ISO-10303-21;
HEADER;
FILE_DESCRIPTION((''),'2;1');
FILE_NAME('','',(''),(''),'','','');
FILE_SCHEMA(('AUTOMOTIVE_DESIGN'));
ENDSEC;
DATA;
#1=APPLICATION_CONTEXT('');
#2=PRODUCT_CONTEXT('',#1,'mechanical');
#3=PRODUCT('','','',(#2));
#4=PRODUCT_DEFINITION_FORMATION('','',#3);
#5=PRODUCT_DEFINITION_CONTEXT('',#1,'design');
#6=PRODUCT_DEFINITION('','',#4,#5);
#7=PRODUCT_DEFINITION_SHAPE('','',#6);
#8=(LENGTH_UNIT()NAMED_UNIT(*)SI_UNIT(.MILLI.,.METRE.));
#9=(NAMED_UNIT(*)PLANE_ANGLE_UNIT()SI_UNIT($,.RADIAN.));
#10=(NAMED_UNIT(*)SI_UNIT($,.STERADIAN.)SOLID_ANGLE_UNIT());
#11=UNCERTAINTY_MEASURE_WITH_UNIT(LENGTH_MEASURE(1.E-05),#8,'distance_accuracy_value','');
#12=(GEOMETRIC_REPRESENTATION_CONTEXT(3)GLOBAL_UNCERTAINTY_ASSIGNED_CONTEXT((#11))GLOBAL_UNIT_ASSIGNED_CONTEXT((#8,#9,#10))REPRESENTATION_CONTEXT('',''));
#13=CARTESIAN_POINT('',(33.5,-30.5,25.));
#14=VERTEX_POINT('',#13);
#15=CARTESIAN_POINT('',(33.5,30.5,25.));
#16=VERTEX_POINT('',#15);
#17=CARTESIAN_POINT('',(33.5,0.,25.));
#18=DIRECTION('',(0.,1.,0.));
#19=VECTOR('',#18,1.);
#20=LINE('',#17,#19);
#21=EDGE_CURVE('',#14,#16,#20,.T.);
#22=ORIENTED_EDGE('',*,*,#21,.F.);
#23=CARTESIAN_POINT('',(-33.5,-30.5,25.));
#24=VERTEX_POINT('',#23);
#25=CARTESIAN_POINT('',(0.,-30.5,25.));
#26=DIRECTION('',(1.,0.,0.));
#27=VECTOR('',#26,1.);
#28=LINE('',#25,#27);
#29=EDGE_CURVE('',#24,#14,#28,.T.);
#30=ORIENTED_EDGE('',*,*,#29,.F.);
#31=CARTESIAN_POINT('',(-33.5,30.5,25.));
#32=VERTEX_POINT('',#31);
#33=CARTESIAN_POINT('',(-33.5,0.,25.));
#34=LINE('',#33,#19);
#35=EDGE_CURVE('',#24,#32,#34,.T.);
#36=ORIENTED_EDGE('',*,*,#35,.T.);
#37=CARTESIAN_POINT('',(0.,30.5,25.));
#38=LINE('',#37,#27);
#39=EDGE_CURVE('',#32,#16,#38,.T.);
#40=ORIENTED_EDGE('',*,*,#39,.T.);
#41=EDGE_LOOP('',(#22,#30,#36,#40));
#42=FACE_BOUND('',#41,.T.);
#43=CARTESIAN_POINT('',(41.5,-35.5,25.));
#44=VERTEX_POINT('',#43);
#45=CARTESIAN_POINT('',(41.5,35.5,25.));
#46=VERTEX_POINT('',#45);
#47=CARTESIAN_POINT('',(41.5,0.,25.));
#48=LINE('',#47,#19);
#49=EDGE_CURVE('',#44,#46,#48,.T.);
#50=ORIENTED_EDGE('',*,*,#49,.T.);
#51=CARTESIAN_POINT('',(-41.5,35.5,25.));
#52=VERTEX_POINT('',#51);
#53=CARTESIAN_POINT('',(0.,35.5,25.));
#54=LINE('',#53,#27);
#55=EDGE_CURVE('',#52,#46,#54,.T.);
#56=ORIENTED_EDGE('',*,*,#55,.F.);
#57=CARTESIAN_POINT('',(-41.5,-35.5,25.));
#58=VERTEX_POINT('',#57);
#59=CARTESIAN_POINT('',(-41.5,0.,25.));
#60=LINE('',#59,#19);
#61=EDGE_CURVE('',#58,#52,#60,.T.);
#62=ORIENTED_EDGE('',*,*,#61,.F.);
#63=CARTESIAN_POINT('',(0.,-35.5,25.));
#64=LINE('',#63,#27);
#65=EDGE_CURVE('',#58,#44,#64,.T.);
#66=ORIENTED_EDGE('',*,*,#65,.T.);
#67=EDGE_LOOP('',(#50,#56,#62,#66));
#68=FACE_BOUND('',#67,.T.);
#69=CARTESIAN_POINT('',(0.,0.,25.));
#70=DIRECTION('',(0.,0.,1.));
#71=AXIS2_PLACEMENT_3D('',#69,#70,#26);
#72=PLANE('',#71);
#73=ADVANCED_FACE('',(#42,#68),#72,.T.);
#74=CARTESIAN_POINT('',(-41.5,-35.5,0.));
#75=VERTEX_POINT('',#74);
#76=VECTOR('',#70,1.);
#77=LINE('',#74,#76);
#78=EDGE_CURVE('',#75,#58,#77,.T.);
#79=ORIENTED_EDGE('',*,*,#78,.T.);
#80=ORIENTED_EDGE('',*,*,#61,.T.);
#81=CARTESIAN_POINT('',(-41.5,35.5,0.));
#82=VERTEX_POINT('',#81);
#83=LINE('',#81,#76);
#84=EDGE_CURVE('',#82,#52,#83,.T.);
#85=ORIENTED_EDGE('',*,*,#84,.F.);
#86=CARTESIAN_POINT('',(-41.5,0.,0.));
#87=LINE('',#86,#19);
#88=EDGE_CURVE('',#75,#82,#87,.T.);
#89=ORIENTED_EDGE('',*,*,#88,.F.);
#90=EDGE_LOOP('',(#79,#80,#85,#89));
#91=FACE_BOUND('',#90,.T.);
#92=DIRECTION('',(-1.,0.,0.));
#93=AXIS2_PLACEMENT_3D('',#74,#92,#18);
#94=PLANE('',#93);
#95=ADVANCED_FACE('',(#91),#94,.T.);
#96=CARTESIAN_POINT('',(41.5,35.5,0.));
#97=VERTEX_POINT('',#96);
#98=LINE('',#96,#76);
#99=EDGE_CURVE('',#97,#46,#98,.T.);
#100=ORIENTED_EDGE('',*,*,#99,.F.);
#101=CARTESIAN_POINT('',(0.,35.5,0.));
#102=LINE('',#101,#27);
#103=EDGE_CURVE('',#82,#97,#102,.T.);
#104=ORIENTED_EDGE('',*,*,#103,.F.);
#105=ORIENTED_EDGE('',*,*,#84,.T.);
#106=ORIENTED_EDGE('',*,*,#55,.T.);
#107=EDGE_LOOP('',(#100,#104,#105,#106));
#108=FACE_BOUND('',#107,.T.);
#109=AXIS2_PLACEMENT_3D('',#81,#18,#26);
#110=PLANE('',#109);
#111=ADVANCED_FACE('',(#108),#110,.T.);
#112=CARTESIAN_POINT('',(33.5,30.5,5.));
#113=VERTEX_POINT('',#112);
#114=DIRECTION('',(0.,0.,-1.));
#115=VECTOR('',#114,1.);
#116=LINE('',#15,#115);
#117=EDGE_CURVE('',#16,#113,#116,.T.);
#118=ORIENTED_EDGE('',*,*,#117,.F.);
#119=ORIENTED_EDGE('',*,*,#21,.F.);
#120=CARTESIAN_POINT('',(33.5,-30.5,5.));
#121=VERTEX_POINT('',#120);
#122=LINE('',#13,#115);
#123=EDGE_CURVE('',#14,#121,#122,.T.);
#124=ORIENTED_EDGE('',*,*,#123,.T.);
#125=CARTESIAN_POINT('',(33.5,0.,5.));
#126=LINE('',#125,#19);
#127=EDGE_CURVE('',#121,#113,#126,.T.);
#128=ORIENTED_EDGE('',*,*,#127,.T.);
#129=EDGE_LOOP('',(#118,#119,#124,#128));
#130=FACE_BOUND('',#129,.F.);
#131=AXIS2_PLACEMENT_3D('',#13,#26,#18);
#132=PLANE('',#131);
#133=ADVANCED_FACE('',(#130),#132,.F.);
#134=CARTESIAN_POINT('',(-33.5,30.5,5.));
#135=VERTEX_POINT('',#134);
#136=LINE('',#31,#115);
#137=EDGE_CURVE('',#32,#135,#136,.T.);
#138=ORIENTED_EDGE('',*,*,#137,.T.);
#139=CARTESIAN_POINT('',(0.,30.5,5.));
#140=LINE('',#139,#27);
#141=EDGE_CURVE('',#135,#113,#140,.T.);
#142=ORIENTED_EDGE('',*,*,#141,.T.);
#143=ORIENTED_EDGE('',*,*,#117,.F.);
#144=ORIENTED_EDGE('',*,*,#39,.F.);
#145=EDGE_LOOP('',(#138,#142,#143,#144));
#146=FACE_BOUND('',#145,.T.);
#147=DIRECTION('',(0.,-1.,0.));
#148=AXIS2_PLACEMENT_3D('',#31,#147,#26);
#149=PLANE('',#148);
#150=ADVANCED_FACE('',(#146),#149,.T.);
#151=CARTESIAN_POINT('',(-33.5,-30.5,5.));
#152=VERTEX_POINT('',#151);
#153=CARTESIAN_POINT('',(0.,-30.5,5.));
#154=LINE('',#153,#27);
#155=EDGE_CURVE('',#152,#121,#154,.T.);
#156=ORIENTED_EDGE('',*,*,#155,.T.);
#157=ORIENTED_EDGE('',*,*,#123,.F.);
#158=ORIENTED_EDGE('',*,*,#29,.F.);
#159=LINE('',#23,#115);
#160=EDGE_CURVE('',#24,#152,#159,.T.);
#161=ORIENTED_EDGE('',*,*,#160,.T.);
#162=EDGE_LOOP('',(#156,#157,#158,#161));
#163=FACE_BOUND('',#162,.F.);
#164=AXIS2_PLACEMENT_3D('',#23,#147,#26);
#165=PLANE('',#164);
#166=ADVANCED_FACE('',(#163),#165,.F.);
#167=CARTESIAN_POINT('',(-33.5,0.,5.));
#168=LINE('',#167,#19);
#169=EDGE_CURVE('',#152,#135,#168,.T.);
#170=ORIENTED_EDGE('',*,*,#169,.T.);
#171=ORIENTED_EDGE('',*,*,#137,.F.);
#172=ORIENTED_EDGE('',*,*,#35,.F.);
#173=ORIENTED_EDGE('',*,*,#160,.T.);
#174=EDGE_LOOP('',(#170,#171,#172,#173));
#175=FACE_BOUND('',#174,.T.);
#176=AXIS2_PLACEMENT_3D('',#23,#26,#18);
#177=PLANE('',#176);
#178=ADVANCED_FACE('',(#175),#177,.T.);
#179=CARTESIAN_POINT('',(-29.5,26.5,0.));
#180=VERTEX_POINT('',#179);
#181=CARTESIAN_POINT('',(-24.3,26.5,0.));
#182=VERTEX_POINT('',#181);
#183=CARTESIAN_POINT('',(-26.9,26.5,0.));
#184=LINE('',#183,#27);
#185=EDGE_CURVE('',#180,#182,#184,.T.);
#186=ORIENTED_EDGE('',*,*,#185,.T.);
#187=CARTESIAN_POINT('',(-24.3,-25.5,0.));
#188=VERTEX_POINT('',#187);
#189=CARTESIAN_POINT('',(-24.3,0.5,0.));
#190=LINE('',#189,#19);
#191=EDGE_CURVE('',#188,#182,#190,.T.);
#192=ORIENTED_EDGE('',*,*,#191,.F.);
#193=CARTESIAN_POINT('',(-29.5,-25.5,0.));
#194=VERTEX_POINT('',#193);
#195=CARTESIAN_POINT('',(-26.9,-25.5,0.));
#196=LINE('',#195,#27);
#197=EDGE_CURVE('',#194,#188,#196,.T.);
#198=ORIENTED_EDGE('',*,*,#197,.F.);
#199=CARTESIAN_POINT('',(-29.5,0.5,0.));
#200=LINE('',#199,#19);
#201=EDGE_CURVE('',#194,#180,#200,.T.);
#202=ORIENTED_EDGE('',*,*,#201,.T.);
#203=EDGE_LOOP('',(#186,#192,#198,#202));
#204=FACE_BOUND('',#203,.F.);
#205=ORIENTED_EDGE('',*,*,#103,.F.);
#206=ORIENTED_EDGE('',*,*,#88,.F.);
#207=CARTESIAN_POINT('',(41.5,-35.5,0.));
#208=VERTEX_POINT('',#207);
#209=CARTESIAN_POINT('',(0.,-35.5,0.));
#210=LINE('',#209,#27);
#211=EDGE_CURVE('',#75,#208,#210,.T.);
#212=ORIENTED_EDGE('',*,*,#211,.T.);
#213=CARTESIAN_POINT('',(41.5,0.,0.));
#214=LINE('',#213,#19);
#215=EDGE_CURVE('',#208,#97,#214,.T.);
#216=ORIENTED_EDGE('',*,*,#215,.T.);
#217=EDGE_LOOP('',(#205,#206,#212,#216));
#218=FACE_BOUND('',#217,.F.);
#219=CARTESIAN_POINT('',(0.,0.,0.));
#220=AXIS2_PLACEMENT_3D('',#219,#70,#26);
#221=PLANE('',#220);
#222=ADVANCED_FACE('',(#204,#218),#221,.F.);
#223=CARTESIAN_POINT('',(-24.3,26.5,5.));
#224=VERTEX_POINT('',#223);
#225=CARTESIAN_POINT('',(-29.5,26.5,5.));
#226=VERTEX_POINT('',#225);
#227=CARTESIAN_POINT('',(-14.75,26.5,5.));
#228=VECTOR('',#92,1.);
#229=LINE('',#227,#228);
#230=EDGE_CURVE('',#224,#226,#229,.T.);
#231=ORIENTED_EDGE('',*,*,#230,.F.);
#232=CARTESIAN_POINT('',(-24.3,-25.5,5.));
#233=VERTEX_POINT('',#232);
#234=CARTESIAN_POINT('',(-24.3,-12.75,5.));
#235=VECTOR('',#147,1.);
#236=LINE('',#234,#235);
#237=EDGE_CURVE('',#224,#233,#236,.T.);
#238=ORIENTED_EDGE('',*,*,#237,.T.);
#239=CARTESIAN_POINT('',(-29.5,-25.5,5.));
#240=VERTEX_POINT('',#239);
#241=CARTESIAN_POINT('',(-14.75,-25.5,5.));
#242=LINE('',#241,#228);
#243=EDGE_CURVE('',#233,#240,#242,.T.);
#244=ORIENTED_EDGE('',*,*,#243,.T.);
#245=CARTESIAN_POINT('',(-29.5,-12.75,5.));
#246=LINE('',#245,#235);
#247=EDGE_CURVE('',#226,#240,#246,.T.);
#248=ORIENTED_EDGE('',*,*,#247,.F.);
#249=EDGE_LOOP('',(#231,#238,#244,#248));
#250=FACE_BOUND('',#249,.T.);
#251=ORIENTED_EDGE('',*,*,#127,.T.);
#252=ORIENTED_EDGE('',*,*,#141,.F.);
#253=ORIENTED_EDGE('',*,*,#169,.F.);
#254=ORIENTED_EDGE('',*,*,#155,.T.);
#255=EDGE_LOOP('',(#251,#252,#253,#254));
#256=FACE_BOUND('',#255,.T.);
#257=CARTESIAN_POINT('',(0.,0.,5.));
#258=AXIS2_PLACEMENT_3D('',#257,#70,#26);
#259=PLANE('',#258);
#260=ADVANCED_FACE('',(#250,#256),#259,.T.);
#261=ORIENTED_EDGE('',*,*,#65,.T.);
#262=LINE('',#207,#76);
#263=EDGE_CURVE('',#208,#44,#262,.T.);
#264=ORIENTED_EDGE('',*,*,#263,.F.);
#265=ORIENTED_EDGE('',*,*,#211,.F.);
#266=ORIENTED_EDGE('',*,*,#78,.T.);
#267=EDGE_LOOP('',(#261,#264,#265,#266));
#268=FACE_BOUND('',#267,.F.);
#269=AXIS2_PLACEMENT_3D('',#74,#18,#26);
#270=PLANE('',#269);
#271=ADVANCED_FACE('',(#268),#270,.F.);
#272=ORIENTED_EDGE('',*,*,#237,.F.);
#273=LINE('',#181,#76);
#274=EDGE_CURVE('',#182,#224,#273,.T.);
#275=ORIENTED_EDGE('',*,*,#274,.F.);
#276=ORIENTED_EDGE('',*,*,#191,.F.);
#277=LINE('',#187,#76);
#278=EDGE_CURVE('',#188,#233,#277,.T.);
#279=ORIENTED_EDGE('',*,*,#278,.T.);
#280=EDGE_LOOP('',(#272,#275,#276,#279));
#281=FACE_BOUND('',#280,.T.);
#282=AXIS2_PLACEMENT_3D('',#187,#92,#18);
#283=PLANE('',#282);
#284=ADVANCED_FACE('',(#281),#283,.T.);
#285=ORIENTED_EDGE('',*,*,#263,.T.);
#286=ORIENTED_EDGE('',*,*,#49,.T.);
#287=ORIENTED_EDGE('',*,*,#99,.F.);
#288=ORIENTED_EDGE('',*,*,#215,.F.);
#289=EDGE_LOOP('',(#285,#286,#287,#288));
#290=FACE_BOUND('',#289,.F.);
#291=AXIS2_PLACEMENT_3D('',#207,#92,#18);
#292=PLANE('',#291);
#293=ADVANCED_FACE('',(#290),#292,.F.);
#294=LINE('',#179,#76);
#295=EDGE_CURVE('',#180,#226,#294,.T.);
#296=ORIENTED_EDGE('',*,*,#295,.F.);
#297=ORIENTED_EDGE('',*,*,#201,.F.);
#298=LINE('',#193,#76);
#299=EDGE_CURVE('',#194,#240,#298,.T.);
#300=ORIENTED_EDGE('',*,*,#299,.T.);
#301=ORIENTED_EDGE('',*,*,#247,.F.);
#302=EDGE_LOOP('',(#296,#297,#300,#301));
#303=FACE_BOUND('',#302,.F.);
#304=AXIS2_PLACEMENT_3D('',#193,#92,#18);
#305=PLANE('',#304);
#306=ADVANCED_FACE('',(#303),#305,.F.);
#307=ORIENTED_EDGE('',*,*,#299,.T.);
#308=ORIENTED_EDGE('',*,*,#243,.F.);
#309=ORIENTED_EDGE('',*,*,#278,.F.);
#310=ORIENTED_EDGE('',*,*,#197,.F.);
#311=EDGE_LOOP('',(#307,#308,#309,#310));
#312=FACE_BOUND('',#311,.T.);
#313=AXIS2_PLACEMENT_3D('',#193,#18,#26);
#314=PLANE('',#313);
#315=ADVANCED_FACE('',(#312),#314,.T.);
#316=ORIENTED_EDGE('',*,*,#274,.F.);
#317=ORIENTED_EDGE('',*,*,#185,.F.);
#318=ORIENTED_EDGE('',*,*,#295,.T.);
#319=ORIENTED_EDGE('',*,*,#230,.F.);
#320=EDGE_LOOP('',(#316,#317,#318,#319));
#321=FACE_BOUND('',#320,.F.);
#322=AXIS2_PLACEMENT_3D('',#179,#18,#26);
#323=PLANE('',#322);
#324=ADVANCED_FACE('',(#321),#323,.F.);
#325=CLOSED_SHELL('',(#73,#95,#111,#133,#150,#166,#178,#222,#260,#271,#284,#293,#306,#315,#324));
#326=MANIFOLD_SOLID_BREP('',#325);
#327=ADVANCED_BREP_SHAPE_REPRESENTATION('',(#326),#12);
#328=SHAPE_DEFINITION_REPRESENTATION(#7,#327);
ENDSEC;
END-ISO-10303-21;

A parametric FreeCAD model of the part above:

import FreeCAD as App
import Part
import Sketcher
Q = App.Units.Quantity


def add_polygon(sketch, points):
    """Adds a closed chain of lines whose ends are joined by coincident constraints."""
    first, n = sketch.GeometryCount, len(points)
    for a, b in zip(points, points[1:] + points[:1]):
        sketch.addGeometry(Part.LineSegment(App.Vector(*a, 0), App.Vector(*b, 0)), False)
    for i in range(n):
        sketch.addConstraint(Sketcher.Constraint("Coincident", first + i, 2, first + (i + 1) % n, 1))

doc = App.newDocument("Part")
params = doc.addObject("Spreadsheet::Sheet", "Params")
for row, (alias, value) in enumerate([
    ("sketch1_width", "83 mm"),
    ("sketch1_height", "71 mm"),
    ("pad1_length", "25 mm"),
    ("sketch2_width", "67 mm"),
    ("sketch2_height", "61 mm"),
    ("pocket1_length", "20 mm"),
    ("sketch3_height", "52 mm"),
    ("sketch3_width", "5.2 mm"),
], start=1):
    params.set(f"A{row}", alias)
    params.set(f"B{row}", "=" + value)
    params.setAlias(f"B{row}", alias)

body = doc.addObject("PartDesign::Body", "Body")

sketch1 = body.newObject("Sketcher::SketchObject", "Sketch")
sketch1.AttachmentSupport = (doc.getObject("XY_Plane"), [""])
sketch1.MapMode = "FlatFace"
add_polygon(sketch1, [(-42, 36), (-42, -36), (42, -36), (42, 36)])
sketch1.addConstraint(Sketcher.Constraint("Vertical", 0))
sketch1.addConstraint(Sketcher.Constraint("Horizontal", 1))
sketch1.addConstraint(Sketcher.Constraint("Vertical", 2))
sketch1.addConstraint(Sketcher.Constraint("Horizontal", 3))
sketch1.addConstraint(Sketcher.Constraint("Symmetric", 0, 2, 2, 2, -1, 1))
sketch1.addConstraint(Sketcher.Constraint("DistanceX", 1, 1, 1, 2, Q("83 mm")))
sketch1.addConstraint(Sketcher.Constraint("DistanceY", 0, 2, 0, 1, Q("71 mm")))
sketch1.setExpression("Constraints[9]", "Params.sketch1_width")
sketch1.setExpression("Constraints[10]", "Params.sketch1_height")
pad1 = body.newObject("PartDesign::Pad", "Pad")
pad1.Profile = sketch1
pad1.setExpression("Length", "Params.pad1_length")

sketch2 = body.newObject("Sketcher::SketchObject", "Sketch001")
sketch2.AttachmentSupport = (doc.getObject("XY_Plane"), [""])
sketch2.MapMode = "FlatFace"
sketch2.AttachmentOffset = App.Placement(App.Vector(0, 0, 25), App.Rotation())
add_polygon(sketch2, [(-34, 30), (-34, -30), (34, -30), (34, 30)])
sketch2.addConstraint(Sketcher.Constraint("Vertical", 0))
sketch2.addConstraint(Sketcher.Constraint("Horizontal", 1))
sketch2.addConstraint(Sketcher.Constraint("Vertical", 2))
sketch2.addConstraint(Sketcher.Constraint("Horizontal", 3))
sketch2.addConstraint(Sketcher.Constraint("Symmetric", 0, 2, 2, 2, -1, 1))
sketch2.addConstraint(Sketcher.Constraint("DistanceX", 1, 1, 1, 2, Q("67 mm")))
sketch2.addConstraint(Sketcher.Constraint("DistanceY", 0, 2, 0, 1, Q("61 mm")))
sketch2.setExpression("Constraints[9]", "Params.sketch2_width")
sketch2.setExpression("Constraints[10]", "Params.sketch2_height")
pocket1 = body.newObject("PartDesign::Pocket", "Pocket")
pocket1.Profile = sketch2
pocket1.setExpression("Length", "Params.pocket1_length")

sketch3 = body.newObject("Sketcher::SketchObject", "Sketch002")
sketch3.AttachmentSupport = (doc.getObject("XY_Plane"), [""])
sketch3.MapMode = "FlatFace"
add_polygon(sketch3, [(-30, 26), (-30, -26), (-24, -26), (-24, 26)])
sketch3.addConstraint(Sketcher.Constraint("Vertical", 0))
sketch3.addConstraint(Sketcher.Constraint("Horizontal", 1))
sketch3.addConstraint(Sketcher.Constraint("Vertical", 2))
sketch3.addConstraint(Sketcher.Constraint("Horizontal", 3))
sketch3.addConstraint(Sketcher.Constraint("DistanceY", 0, 2, 0, 1, Q("52 mm")))
sketch3.addConstraint(Sketcher.Constraint("DistanceX", 1, 1, 1, 2, Q("5.2 mm")))
sketch3.addConstraint(Sketcher.Constraint("DistanceX", 0, 2, -1, 1, Q("29.5 mm")))
sketch3.addConstraint(Sketcher.Constraint("DistanceY", 0, 2, -1, 1, Q("25.5 mm")))
sketch3.setExpression("Constraints[8]", "Params.sketch3_height")
sketch3.setExpression("Constraints[9]", "Params.sketch3_width")
pocket2 = body.newObject("PartDesign::Pocket", "Pocket001")
pocket2.Profile = sketch3
pocket2.Type = "ThroughAll"
pocket2.Reversed = True

doc.recompute()
